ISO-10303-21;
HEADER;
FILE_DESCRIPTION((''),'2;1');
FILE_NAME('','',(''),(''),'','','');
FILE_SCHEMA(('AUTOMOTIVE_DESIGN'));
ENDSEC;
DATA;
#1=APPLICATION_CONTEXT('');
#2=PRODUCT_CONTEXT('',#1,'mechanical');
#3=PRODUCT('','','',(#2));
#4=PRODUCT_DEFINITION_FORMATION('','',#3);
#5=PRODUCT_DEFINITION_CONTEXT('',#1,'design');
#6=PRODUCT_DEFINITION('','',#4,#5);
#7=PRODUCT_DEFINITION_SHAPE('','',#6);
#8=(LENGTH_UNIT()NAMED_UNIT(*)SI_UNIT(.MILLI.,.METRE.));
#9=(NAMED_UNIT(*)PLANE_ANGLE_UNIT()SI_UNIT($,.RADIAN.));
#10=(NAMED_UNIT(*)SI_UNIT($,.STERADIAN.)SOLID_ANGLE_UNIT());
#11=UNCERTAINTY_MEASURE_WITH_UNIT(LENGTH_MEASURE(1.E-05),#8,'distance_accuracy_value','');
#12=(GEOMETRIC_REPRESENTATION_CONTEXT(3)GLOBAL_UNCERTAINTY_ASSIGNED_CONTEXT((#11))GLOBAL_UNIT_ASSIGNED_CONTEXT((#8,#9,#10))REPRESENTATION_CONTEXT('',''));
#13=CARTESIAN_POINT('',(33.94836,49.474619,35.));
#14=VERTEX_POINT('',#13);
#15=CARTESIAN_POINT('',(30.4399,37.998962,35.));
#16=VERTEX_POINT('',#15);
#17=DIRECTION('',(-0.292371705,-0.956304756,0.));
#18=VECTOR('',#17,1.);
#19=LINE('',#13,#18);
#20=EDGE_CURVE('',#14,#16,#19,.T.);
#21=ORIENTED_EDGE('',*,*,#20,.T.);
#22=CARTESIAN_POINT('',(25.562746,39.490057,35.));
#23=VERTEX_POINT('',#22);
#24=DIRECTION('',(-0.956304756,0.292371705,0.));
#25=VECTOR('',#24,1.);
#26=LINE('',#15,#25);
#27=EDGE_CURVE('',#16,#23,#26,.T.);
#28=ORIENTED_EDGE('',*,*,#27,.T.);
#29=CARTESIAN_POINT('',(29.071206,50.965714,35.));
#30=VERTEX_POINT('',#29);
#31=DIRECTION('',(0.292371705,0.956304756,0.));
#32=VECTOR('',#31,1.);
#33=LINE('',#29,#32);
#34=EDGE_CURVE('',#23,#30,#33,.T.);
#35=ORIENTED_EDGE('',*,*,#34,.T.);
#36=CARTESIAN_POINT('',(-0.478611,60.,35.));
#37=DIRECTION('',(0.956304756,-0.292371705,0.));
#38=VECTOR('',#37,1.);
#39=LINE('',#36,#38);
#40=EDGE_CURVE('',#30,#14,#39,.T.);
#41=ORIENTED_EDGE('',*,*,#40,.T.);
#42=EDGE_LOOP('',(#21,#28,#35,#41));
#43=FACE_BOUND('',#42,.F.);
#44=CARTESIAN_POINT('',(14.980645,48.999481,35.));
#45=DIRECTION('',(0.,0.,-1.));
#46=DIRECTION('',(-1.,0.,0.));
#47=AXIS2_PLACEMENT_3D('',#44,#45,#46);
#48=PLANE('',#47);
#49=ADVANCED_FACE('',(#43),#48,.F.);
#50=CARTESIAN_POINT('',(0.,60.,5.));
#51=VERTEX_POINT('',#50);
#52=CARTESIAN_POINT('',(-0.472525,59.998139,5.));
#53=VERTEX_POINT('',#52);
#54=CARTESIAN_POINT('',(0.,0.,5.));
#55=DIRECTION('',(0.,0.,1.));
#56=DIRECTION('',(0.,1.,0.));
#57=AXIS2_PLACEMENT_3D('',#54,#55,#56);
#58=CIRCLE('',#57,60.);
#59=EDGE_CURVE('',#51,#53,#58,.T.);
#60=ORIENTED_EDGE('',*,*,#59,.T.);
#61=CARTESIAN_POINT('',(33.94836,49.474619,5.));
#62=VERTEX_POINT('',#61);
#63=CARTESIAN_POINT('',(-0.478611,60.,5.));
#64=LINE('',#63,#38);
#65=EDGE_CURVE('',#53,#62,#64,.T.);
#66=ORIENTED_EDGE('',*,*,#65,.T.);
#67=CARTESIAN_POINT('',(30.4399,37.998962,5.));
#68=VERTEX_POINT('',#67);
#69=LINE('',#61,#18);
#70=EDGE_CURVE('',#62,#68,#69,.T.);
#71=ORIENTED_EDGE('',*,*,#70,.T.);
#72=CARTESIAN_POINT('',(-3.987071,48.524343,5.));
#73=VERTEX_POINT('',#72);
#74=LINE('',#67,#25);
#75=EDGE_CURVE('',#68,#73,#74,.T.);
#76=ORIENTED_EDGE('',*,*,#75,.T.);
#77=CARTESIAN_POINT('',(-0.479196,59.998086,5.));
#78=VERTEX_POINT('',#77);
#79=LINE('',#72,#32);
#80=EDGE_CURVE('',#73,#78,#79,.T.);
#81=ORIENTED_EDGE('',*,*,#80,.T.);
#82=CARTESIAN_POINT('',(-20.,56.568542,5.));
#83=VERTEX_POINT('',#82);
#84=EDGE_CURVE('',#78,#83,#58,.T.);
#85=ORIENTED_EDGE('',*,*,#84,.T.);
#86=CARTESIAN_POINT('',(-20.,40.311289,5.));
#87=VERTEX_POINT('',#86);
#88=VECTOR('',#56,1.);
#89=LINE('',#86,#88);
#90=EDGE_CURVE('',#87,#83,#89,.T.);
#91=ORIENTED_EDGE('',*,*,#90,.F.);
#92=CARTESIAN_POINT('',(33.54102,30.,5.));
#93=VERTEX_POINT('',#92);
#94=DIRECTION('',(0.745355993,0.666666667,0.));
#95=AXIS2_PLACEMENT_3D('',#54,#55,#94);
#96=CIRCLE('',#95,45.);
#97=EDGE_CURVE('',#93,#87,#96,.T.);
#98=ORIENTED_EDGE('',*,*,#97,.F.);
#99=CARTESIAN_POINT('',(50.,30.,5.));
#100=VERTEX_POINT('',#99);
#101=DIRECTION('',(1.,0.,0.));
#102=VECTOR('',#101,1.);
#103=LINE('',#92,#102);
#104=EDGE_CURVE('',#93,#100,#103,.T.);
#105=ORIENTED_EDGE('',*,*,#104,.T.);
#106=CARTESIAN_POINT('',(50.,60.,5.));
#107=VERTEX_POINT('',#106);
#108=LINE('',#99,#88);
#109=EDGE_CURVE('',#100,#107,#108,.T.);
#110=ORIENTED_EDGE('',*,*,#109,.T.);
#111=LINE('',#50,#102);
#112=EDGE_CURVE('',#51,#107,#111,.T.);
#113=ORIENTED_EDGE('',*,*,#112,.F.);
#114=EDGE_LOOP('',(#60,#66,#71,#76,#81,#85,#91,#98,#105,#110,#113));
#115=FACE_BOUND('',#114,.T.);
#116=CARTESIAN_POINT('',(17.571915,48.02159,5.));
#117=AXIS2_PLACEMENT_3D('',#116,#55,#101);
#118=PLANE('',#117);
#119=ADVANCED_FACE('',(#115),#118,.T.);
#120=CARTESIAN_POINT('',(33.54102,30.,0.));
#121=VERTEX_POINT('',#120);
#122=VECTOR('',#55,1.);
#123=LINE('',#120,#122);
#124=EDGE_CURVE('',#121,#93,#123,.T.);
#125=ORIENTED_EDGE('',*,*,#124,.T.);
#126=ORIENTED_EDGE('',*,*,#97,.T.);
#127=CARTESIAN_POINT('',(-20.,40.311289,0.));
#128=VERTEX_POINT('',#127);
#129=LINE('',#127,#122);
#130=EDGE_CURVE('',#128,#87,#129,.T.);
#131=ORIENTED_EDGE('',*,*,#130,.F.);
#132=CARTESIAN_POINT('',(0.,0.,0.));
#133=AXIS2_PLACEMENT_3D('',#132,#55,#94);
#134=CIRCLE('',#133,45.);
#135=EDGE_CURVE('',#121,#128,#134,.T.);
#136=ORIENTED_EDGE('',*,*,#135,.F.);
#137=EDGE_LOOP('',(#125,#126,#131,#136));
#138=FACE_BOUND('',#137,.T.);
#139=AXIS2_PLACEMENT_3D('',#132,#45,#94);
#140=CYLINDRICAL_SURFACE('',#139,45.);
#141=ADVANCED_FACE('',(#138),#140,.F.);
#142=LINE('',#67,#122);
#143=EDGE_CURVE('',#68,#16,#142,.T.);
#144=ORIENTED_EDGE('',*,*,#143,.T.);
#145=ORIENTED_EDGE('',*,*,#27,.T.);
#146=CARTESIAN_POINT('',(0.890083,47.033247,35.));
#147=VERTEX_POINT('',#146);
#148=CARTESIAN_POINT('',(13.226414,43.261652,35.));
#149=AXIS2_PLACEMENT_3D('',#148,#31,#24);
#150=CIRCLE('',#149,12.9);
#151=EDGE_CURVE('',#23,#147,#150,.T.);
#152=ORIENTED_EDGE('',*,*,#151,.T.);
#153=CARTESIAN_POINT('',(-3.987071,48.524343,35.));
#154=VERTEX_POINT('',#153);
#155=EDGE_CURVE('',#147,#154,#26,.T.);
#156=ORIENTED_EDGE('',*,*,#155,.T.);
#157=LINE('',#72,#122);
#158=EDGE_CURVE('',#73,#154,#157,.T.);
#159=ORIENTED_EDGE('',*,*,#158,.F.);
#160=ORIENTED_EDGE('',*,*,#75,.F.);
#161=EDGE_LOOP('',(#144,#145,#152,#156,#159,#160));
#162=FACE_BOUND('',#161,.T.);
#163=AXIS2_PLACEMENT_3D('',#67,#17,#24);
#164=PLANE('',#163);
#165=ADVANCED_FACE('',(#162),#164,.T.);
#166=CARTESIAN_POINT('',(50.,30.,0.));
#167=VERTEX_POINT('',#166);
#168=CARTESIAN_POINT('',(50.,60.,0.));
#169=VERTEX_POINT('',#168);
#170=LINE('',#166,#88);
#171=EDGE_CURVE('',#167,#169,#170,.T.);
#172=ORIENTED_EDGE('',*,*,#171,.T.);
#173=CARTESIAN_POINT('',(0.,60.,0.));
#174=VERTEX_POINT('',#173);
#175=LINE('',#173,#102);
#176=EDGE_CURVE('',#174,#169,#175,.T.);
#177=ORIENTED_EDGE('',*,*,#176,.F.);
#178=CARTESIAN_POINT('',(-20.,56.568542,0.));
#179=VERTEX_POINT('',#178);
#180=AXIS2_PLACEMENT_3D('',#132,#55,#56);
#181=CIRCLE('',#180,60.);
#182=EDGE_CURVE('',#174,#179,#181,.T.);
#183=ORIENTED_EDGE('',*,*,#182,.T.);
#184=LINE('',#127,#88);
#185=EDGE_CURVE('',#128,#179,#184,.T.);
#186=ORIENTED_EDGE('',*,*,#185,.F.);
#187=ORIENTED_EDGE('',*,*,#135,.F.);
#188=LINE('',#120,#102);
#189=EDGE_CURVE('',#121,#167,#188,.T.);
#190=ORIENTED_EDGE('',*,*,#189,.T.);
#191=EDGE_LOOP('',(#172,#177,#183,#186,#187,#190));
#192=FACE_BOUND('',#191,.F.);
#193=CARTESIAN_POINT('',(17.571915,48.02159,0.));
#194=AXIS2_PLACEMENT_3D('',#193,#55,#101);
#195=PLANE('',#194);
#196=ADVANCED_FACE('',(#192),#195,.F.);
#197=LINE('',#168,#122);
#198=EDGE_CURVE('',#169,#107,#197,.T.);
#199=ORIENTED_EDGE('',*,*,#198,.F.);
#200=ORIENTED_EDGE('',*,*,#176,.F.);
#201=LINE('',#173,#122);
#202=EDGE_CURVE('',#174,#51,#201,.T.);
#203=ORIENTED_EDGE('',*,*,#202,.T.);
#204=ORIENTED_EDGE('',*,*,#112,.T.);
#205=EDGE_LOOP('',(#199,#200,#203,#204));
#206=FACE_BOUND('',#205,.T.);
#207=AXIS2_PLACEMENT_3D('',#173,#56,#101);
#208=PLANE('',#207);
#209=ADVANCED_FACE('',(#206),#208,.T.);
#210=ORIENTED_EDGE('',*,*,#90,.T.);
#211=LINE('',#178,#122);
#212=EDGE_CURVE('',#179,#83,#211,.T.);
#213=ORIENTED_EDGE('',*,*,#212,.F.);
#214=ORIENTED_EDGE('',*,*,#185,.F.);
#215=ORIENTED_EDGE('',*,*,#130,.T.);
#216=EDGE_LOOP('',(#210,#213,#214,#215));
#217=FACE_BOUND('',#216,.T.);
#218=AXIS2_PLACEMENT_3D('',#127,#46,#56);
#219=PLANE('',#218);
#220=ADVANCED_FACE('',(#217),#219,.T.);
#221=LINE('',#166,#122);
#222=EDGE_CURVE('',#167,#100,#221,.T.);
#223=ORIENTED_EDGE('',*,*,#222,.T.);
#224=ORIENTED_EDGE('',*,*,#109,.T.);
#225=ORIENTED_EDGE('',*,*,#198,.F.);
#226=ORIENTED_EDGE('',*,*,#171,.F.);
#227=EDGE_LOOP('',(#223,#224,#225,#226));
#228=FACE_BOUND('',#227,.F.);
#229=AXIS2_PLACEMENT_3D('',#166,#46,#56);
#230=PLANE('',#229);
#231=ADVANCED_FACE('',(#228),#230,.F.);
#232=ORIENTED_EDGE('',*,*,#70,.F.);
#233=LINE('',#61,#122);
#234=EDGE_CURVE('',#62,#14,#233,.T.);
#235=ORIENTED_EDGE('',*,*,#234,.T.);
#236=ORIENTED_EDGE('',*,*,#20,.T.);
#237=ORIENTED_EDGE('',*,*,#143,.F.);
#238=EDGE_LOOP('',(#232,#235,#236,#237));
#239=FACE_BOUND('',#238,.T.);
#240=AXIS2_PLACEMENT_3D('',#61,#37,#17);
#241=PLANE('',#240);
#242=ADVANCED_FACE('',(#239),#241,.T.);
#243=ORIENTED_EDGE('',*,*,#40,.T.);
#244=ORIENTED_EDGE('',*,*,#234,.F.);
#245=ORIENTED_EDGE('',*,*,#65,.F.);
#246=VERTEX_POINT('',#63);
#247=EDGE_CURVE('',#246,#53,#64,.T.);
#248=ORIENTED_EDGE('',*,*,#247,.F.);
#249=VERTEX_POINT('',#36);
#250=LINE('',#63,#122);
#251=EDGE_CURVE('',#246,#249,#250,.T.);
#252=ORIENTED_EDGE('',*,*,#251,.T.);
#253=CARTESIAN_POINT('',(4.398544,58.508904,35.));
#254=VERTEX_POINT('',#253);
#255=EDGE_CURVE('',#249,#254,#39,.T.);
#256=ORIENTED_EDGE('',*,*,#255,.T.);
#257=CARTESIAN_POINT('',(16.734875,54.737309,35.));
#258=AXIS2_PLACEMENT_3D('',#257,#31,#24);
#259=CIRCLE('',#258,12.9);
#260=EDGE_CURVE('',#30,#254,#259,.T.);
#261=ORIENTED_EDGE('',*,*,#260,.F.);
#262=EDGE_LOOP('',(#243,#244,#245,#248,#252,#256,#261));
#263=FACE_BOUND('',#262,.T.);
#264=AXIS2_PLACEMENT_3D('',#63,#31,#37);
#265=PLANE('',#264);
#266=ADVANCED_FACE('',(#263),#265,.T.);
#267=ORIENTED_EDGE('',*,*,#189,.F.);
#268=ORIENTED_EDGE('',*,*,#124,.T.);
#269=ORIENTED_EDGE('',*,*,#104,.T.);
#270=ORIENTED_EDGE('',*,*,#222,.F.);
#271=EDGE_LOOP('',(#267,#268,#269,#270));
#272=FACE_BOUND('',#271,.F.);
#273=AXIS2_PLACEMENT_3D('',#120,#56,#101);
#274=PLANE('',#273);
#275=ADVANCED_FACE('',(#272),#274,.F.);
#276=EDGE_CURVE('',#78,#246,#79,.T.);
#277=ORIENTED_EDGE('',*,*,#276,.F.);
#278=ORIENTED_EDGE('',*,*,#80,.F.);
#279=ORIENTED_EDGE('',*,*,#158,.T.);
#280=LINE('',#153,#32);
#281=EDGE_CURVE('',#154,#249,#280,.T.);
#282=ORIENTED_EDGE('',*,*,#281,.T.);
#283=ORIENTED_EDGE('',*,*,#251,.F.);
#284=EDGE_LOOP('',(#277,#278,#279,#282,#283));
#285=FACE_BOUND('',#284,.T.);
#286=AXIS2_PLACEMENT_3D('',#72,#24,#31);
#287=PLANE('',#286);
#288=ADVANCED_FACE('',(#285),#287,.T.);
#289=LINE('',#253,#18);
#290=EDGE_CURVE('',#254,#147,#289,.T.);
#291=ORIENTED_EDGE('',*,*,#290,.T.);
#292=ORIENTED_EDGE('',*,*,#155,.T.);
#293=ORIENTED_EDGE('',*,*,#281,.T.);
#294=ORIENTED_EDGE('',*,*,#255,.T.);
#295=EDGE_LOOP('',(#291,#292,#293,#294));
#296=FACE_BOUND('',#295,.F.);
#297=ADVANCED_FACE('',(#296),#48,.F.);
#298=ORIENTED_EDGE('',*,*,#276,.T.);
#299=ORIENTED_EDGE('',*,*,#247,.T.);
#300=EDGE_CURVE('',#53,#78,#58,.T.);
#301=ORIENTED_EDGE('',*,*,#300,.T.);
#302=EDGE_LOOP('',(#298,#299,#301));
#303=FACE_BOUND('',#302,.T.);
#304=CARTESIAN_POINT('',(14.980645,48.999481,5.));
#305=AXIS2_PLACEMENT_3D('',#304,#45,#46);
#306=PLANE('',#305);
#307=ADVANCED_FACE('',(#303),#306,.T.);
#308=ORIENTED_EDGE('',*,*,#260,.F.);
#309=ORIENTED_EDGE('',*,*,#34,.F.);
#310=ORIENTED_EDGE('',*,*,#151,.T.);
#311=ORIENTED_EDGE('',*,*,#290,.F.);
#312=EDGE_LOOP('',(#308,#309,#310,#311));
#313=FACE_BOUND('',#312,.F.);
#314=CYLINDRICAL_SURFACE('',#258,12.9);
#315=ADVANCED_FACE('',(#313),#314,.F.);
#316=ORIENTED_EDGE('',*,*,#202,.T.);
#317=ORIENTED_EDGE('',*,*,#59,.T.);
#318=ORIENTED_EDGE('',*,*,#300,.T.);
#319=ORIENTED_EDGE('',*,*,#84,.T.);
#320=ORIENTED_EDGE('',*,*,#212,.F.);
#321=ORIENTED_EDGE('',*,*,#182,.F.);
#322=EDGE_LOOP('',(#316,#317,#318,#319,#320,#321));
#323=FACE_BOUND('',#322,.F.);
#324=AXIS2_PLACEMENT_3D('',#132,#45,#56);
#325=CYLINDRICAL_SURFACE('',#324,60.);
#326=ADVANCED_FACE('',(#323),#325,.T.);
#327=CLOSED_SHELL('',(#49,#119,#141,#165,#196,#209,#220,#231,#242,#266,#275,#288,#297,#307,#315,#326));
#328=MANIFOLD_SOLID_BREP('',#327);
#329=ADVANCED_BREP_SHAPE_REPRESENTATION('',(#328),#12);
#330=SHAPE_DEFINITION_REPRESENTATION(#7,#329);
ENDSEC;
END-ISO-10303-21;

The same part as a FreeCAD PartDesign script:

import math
import FreeCAD as App
import Part
import Sketcher
Q = App.Units.Quantity

doc = App.newDocument("Part")
body = doc.addObject("PartDesign::Body", "Body")

sketch1 = body.newObject("Sketcher::SketchObject", "Sketch")
sketch1.AttachmentSupport = (doc.getObject("XY_Plane"), [""])
sketch1.MapMode = "FlatFace"
sketch1.addGeometry(Part.LineSegment(App.Vector(33.54102, 30, 0), App.Vector(50, 30, 0)), False)
sketch1.addGeometry(Part.LineSegment(App.Vector(50, 30, 0), App.Vector(50, 60, 0)), False)
sketch1.addGeometry(Part.LineSegment(App.Vector(50, 60, 0), App.Vector(0, 60, 0)), False)
sketch1.addGeometry(Part.ArcOfCircle(Part.Circle(App.Vector(0, 0, 0), App.Vector(0, 0, 1), 60), math.radians(90), math.radians(109.471221)), False)
sketch1.addGeometry(Part.LineSegment(App.Vector(-20, 56.568542, 0), App.Vector(-20, 40.311289, 0)), False)
sketch1.addGeometry(Part.ArcOfCircle(Part.Circle(App.Vector(0, 0, 0), App.Vector(0, 0, 1), 45), math.radians(41.810315), math.radians(116.3878)), False)
sketch1.addConstraint(Sketcher.Constraint("Coincident", 0, 2, 1, 1))
sketch1.addConstraint(Sketcher.Constraint("Coincident", 1, 2, 2, 1))
sketch1.addConstraint(Sketcher.Constraint("Tangent", 2, 2, 3, 1))
sketch1.addConstraint(Sketcher.Constraint("Coincident", 3, 2, 4, 1))
sketch1.addConstraint(Sketcher.Constraint("Coincident", 4, 2, 5, 2))
sketch1.addConstraint(Sketcher.Constraint("Coincident", 5, 1, 0, 1))
sketch1.addConstraint(Sketcher.Constraint("Horizontal", 0))
sketch1.addConstraint(Sketcher.Constraint("Vertical", 1))
sketch1.addConstraint(Sketcher.Constraint("Horizontal", 2))
sketch1.addConstraint(Sketcher.Constraint("Vertical", 4))
sketch1.addConstraint(Sketcher.Constraint("Coincident", 3, 3, -1, 1))
sketch1.addConstraint(Sketcher.Constraint("Coincident", 5, 3, -1, 1))
sketch1.addConstraint(Sketcher.Constraint("Radius", 3, 60.0))
sketch1.addConstraint(Sketcher.Constraint("Radius", 5, 45.0))
sketch1.addConstraint(Sketcher.Constraint("DistanceX", 2, 2, 2, 1, 50.0))
sketch1.addConstraint(Sketcher.Constraint("DistanceY", 1, 1, 1, 2, 30.0))
sketch1.addConstraint(Sketcher.Constraint("DistanceX", 3, 2, -1, 1, 20.0))
pad1 = body.newObject("PartDesign::Pad", "Pad")
pad1.Profile = sketch1
pad1.Length = 5

sketch2 = body.newObject("Sketcher::SketchObject", "Sketch001")
sketch2.AttachmentSupport = (doc.getObject("XY_Plane"), [""])
sketch2.MapMode = "FlatFace"
sketch2.AttachmentOffset = App.Placement(App.Vector(0, 0, 5), App.Rotation())
sketch2.addGeometry(Part.LineSegment(App.Vector(33.94836, 49.474619, 0), App.Vector(-0.478611, 60, 0)), False)
sketch2.addGeometry(Part.LineSegment(App.Vector(-0.478611, 60, 0), App.Vector(-3.987071, 48.524343, 0)), False)
sketch2.addGeometry(Part.LineSegment(App.Vector(-3.987071, 48.524343, 0), App.Vector(30.4399, 37.998962, 0)), False)
sketch2.addGeometry(Part.LineSegment(App.Vector(30.4399, 37.998962, 0), App.Vector(33.94836, 49.474619, 0)), False)
sketch2.addConstraint(Sketcher.Constraint("Coincident", 0, 2, 1, 1))
sketch2.addConstraint(Sketcher.Constraint("Coincident", 1, 2, 2, 1))
sketch2.addConstraint(Sketcher.Constraint("Coincident", 2, 2, 3, 1))
sketch2.addConstraint(Sketcher.Constraint("Coincident", 3, 2, 0, 1))
sketch2.addConstraint(Sketcher.Constraint("Perpendicular", 0, 1))
sketch2.addConstraint(Sketcher.Constraint("Perpendicular", 1, 2))
sketch2.addConstraint(Sketcher.Constraint("Perpendicular", 2, 3))
sketch2.addConstraint(Sketcher.Constraint("Angle", 0, Q("163 deg")))
sketch2.addConstraint(Sketcher.Constraint("Distance", 0, 36.0))
sketch2.addConstraint(Sketcher.Constraint("Distance", 1, 12.0))
sketch2.addConstraint(Sketcher.Constraint("DistanceY", -1, 1, 0, 2, 60.0))
sketch2.addConstraint(Sketcher.Constraint("DistanceX", -1, 1, 2, 2, 30.4399))
pad2 = body.newObject("PartDesign::Pad", "Pad001")
pad2.Profile = sketch2
pad2.Length = 30

sketch3 = body.newObject("Sketcher::SketchObject", "Sketch002")
sketch3.Placement = App.Placement(App.Vector(16.734875, 54.737309, 0), App.Rotation(App.Vector(-0.956304756, 0.292371705, 0), App.Vector(0, 0, 1), App.Vector(0.292371705, 0.956304756, 0), "ZXY"))
sketch3.addGeometry(Part.Circle(App.Vector(0, 35, 0), App.Vector(0, 0, 1), 12.9), False)
sketch3.addConstraint(Sketcher.Constraint("PointOnObject", 0, 3, -2))
sketch3.addConstraint(Sketcher.Constraint("Diameter", 0, 25.8))
sketch3.addConstraint(Sketcher.Constraint("DistanceY", -1, 1, 0, 3, 35.0))
pocket1 = body.newObject("PartDesign::Pocket", "Pocket")
pocket1.Profile = sketch3
pocket1.Type = "ThroughAll"

doc.recompute()
